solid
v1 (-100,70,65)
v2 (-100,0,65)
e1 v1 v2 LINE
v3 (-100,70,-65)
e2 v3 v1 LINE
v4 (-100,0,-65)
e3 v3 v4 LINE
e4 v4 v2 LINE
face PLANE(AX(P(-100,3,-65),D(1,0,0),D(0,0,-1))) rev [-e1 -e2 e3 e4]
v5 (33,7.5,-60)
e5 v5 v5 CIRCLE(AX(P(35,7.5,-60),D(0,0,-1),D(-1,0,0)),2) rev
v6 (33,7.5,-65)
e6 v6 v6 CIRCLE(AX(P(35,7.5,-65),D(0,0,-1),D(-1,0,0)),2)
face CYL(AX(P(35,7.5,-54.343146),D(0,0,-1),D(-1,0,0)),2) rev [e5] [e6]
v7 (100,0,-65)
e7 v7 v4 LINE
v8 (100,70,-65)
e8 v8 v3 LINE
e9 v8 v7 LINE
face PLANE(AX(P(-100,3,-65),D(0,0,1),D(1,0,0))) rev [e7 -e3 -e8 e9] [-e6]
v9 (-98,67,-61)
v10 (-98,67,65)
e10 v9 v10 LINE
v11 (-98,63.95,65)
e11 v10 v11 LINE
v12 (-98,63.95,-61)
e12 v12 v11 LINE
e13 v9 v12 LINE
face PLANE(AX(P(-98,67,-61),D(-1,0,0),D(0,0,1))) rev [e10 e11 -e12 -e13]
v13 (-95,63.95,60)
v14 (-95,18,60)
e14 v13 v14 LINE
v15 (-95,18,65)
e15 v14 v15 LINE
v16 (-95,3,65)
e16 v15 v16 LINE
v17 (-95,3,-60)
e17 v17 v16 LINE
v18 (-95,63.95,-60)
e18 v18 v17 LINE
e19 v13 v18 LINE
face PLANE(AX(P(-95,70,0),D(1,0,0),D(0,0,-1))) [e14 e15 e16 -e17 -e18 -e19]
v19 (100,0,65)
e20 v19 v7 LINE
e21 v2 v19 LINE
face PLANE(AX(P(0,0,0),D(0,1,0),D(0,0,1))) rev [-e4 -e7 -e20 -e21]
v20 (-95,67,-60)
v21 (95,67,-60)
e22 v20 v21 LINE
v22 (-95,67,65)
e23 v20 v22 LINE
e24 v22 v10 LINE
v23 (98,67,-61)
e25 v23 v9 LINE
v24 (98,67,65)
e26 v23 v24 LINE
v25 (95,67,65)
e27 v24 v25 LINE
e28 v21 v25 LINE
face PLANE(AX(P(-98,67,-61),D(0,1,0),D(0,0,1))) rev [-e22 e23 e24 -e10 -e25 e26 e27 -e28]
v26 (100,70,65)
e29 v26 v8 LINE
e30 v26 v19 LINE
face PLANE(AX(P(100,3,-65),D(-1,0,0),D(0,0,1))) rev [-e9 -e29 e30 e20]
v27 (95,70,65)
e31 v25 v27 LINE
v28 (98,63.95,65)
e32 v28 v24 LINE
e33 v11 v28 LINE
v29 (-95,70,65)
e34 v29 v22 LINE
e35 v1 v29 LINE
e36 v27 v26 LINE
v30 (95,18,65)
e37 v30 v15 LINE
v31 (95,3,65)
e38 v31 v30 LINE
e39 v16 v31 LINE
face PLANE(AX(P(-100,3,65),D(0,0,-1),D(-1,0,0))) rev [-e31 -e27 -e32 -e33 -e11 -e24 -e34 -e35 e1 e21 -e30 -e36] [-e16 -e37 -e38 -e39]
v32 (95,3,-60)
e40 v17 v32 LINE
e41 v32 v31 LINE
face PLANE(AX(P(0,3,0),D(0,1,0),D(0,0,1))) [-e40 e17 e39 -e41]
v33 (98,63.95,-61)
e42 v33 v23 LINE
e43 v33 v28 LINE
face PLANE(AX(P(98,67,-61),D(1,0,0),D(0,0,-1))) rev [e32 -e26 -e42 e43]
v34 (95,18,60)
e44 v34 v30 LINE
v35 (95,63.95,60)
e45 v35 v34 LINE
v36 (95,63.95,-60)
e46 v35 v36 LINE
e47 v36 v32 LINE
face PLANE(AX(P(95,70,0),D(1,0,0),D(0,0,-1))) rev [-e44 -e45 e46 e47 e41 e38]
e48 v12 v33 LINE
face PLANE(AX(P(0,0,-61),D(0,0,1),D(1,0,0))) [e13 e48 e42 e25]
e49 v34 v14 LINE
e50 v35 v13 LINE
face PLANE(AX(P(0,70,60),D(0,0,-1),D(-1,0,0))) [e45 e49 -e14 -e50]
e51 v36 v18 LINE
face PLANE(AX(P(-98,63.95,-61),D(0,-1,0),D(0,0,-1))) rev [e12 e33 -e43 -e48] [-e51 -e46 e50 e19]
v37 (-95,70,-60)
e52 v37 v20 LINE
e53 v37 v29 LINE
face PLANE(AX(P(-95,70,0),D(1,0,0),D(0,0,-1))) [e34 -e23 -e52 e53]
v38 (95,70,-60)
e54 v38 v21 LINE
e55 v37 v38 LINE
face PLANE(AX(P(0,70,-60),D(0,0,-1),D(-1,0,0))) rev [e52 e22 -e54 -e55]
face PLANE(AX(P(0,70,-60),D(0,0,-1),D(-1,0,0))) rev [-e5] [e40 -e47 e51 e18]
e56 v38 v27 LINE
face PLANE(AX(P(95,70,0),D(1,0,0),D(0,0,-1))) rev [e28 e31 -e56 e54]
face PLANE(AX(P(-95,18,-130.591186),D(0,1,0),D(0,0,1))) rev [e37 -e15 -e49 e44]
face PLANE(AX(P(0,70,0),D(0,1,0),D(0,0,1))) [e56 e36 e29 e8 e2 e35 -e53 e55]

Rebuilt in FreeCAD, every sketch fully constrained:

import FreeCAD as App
import Part
import Sketcher

V = App.Vector
Q = App.Units.Quantity


def add_polygon(sketch, points):
    """Adds a closed chain of lines whose ends are joined by coincident constraints."""
    first, n = sketch.GeometryCount, len(points)
    for a, b in zip(points, points[1:] + points[:1]):
        sketch.addGeometry(Part.LineSegment(App.Vector(*a, 0), App.Vector(*b, 0)), False)
    for i in range(n):
        sketch.addConstraint(Sketcher.Constraint("Coincident", first + i, 2, first + (i + 1) % n, 1))

doc = App.newDocument("Part")
params = doc.addObject("Spreadsheet::Sheet", "Params")
for row, (alias, value) in enumerate([
    ("sketch1_width", "200 mm"),
    ("sketch1_height", "130 mm"),
    ("pad1_length", "3 mm"),
    ("sketch2_width", "200 mm"),
    ("sketch2_width2", "190 mm"),
    ("sketch2_height", "130 mm"),
    ("sketch2_height2", "120 mm"),
    ("pad2_length", "67 mm"),
    ("sketch3_width", "190 mm"),
    ("sketch3_height", "15 mm"),
    ("pocket1_length", "5 mm"),
    ("sketch4_width", "196 mm"),
    ("sketch4_height", "3.05 mm"),
    ("pocket2_length", "126 mm"),
    ("sketch5_width", "190 mm"),
    ("sketch5_height", "3 mm"),
    ("pocket3_length", "5 mm"),
    ("sketch6_diameter", "4 mm"),
    ("pocket4_length", "5 mm"),
], start=1):
    params.set(f"A{row}", alias)
    params.set(f"B{row}", "=" + value)
    params.setAlias(f"B{row}", alias)

body = doc.addObject("PartDesign::Body", "Body")

# Sketch on XZ plane
sketch1 = body.newObject("Sketcher::SketchObject", "Sketch")
sketch1.AttachmentSupport = (doc.getObject("XZ_Plane"), [""])
sketch1.MapMode = "FlatFace"
add_polygon(sketch1, [(-100, -65), (-100, 65), (100, 65), (100, -65)])  # lines 0-3
sketch1.addConstraint([
    Sketcher.Constraint("Vertical", 0),
    Sketcher.Constraint("Horizontal", 1),
    Sketcher.Constraint("Vertical", 2),
    Sketcher.Constraint("Horizontal", 3),
    Sketcher.Constraint("Symmetric", 0, 2, 2, 2, -1, 1),
    Sketcher.Constraint("DistanceX", 1, 1, 1, 2, Q("200 mm")),
    Sketcher.Constraint("DistanceY", 0, 1, 0, 2, Q("130 mm")),
])
sketch1.setExpression("Constraints[9]", "Params.sketch1_width")
sketch1.setExpression("Constraints[10]", "Params.sketch1_height")
pad1 = body.newObject("PartDesign::Pad", "Pad")
pad1.Profile = sketch1
pad1.setExpression("Length", "Params.pad1_length")
pad1.Reversed = True

# Sketch on XZ plane
sketch2 = body.newObject("Sketcher::SketchObject", "Sketch001")
sketch2.AttachmentSupport = (doc.getObject("XZ_Plane"), [""])
sketch2.MapMode = "FlatFace"
sketch2.AttachmentOffset = App.Placement(V(0, 0, -3), App.Rotation())
add_polygon(sketch2, [(-100, 65), (100, 65), (100, -65), (-100, -65)])  # lines 0-3
add_polygon(sketch2, [(95, 60), (-95, 60), (-95, -60), (95, -60)])  # lines 4-7
sketch2.addConstraint([
    Sketcher.Constraint("Horizontal", 0),
    Sketcher.Constraint("Vertical", 1),
    Sketcher.Constraint("Horizontal", 2),
    Sketcher.Constraint("Vertical", 3),
    Sketcher.Constraint("Horizontal", 4),
    Sketcher.Constraint("Vertical", 5),
    Sketcher.Constraint("Horizontal", 6),
    Sketcher.Constraint("Vertical", 7),
    Sketcher.Constraint("Symmetric", 0, 2, 2, 2, -1, 1),
    Sketcher.Constraint("Symmetric", 4, 2, 6, 2, -1, 1),
    Sketcher.Constraint("DistanceX", 0, 1, 0, 2, Q("200 mm")),
    Sketcher.Constraint("DistanceX", 4, 2, 4, 1, Q("190 mm")),
    Sketcher.Constraint("DistanceY", 1, 2, 1, 1, Q("130 mm")),
    Sketcher.Constraint("DistanceY", 5, 2, 5, 1, Q("120 mm")),
])
sketch2.setExpression("Constraints[18]", "Params.sketch2_width")
sketch2.setExpression("Constraints[19]", "Params.sketch2_width2")
sketch2.setExpression("Constraints[20]", "Params.sketch2_height")
sketch2.setExpression("Constraints[21]", "Params.sketch2_height2")
pad2 = body.newObject("PartDesign::Pad", "Pad001")
pad2.Profile = sketch2
pad2.setExpression("Length", "Params.pad2_length")
pad2.Reversed = True

# Sketch on XY plane
sketch3 = body.newObject("Sketcher::SketchObject", "Sketch002")
sketch3.AttachmentSupport = (doc.getObject("XY_Plane"), [""])
sketch3.MapMode = "FlatFace"
sketch3.AttachmentOffset = App.Placement(V(0, 0, 65), App.Rotation())
add_polygon(sketch3, [(-95, 18), (-95, 3), (95, 3), (95, 18)])  # lines 0-3
sketch3.addConstraint([
    Sketcher.Constraint("Vertical", 0),
    Sketcher.Constraint("Horizontal", 1),
    Sketcher.Constraint("Vertical", 2),
    Sketcher.Constraint("Horizontal", 3),
    Sketcher.Constraint("DistanceX", 1, 1, 1, 2, Q("190 mm")),
    Sketcher.Constraint("DistanceY", 0, 2, 0, 1, Q("15 mm")),
    Sketcher.Constraint("DistanceX", 0, 2, -1, 1, Q("95 mm")),
    Sketcher.Constraint("DistanceY", -1, 1, 0, 2, Q("3 mm")),
])
sketch3.setExpression("Constraints[8]", "Params.sketch3_width")
sketch3.setExpression("Constraints[9]", "Params.sketch3_height")
pocket1 = body.newObject("PartDesign::Pocket", "Pocket")
pocket1.Profile = sketch3
pocket1.setExpression("Length", "Params.pocket1_length")

# Sketch on XY plane
sketch4 = body.newObject("Sketcher::SketchObject", "Sketch003")
sketch4.AttachmentSupport = (doc.getObject("XY_Plane"), [""])
sketch4.MapMode = "FlatFace"
sketch4.AttachmentOffset = App.Placement(V(0, 0, 65), App.Rotation())
add_polygon(sketch4, [(-98, 67), (-98, 64), (98, 64), (98, 67)])  # lines 0-3
sketch4.addConstraint([
    Sketcher.Constraint("Vertical", 0),
    Sketcher.Constraint("Horizontal", 1),
    Sketcher.Constraint("Vertical", 2),
    Sketcher.Constraint("Horizontal", 3),
    Sketcher.Constraint("DistanceX", 1, 1, 1, 2, Q("196 mm")),
    Sketcher.Constraint("DistanceX", 0, 2, -1, 1, Q("98 mm")),
    Sketcher.Constraint("DistanceY", -1, 1, 2, 2, Q("67 mm")),
    Sketcher.Constraint("DistanceY", 0, 2, 0, 1, Q("3.05 mm")),
])
sketch4.setExpression("Constraints[8]", "Params.sketch4_width")
sketch4.setExpression("Constraints[11]", "Params.sketch4_height")
pocket2 = body.newObject("PartDesign::Pocket", "Pocket001")
pocket2.Profile = sketch4
pocket2.setExpression("Length", "Params.pocket2_length")

# Sketch on XY plane
sketch5 = body.newObject("Sketcher::SketchObject", "Sketch004")
sketch5.AttachmentSupport = (doc.getObject("XY_Plane"), [""])
sketch5.MapMode = "FlatFace"
sketch5.AttachmentOffset = App.Placement(V(0, 0, 60), App.Rotation())
add_polygon(sketch5, [(95, 70), (95, 67), (-95, 67), (-95, 70)])  # lines 0-3
sketch5.addConstraint([
    Sketcher.Constraint("Vertical", 0),
    Sketcher.Constraint("Horizontal", 1),
    Sketcher.Constraint("Vertical", 2),
    Sketcher.Constraint("Horizontal", 3),
    Sketcher.Constraint("DistanceX", 1, 2, 1, 1, Q("190 mm")),
    Sketcher.Constraint("DistanceY", 0, 2, 0, 1, Q("3 mm")),
    Sketcher.Constraint("DistanceX", -1, 1, 0, 2, Q("95 mm")),
    Sketcher.Constraint("DistanceY", -1, 1, 0, 2, Q("67 mm")),
])
sketch5.setExpression("Constraints[8]", "Params.sketch5_width")
sketch5.setExpression("Constraints[9]", "Params.sketch5_height")
pocket3 = body.newObject("PartDesign::Pocket", "Pocket002")
pocket3.Profile = sketch5
pocket3.setExpression("Length", "Params.pocket3_length")
pocket3.Reversed = True

# Sketch on XY plane
sketch6 = body.newObject("Sketcher::SketchObject", "Sketch005")
sketch6.AttachmentSupport = (doc.getObject("XY_Plane"), [""])
sketch6.MapMode = "FlatFace"
sketch6.AttachmentOffset = App.Placement(V(0, 0, -65), App.Rotation())
sketch6.addGeometry(Part.Circle(V(35, 7.5, 0), V(0, 0, 1), 2), False)
sketch6.addConstraint([
    Sketcher.Constraint("Diameter", 0, Q("4 mm")),
    Sketcher.Constraint("DistanceX", -1, 1, 0, 3, Q("35 mm")),
    Sketcher.Constraint("DistanceY", -1, 1, 0, 3, Q("7.5 mm")),
])
sketch6.setExpression("Constraints[0]", "Params.sketch6_diameter")
pocket4 = body.newObject("PartDesign::Pocket", "Pocket003")
pocket4.Profile = sketch6
pocket4.setExpression("Length", "Params.pocket4_length")
pocket4.Reversed = True

doc.recompute()
